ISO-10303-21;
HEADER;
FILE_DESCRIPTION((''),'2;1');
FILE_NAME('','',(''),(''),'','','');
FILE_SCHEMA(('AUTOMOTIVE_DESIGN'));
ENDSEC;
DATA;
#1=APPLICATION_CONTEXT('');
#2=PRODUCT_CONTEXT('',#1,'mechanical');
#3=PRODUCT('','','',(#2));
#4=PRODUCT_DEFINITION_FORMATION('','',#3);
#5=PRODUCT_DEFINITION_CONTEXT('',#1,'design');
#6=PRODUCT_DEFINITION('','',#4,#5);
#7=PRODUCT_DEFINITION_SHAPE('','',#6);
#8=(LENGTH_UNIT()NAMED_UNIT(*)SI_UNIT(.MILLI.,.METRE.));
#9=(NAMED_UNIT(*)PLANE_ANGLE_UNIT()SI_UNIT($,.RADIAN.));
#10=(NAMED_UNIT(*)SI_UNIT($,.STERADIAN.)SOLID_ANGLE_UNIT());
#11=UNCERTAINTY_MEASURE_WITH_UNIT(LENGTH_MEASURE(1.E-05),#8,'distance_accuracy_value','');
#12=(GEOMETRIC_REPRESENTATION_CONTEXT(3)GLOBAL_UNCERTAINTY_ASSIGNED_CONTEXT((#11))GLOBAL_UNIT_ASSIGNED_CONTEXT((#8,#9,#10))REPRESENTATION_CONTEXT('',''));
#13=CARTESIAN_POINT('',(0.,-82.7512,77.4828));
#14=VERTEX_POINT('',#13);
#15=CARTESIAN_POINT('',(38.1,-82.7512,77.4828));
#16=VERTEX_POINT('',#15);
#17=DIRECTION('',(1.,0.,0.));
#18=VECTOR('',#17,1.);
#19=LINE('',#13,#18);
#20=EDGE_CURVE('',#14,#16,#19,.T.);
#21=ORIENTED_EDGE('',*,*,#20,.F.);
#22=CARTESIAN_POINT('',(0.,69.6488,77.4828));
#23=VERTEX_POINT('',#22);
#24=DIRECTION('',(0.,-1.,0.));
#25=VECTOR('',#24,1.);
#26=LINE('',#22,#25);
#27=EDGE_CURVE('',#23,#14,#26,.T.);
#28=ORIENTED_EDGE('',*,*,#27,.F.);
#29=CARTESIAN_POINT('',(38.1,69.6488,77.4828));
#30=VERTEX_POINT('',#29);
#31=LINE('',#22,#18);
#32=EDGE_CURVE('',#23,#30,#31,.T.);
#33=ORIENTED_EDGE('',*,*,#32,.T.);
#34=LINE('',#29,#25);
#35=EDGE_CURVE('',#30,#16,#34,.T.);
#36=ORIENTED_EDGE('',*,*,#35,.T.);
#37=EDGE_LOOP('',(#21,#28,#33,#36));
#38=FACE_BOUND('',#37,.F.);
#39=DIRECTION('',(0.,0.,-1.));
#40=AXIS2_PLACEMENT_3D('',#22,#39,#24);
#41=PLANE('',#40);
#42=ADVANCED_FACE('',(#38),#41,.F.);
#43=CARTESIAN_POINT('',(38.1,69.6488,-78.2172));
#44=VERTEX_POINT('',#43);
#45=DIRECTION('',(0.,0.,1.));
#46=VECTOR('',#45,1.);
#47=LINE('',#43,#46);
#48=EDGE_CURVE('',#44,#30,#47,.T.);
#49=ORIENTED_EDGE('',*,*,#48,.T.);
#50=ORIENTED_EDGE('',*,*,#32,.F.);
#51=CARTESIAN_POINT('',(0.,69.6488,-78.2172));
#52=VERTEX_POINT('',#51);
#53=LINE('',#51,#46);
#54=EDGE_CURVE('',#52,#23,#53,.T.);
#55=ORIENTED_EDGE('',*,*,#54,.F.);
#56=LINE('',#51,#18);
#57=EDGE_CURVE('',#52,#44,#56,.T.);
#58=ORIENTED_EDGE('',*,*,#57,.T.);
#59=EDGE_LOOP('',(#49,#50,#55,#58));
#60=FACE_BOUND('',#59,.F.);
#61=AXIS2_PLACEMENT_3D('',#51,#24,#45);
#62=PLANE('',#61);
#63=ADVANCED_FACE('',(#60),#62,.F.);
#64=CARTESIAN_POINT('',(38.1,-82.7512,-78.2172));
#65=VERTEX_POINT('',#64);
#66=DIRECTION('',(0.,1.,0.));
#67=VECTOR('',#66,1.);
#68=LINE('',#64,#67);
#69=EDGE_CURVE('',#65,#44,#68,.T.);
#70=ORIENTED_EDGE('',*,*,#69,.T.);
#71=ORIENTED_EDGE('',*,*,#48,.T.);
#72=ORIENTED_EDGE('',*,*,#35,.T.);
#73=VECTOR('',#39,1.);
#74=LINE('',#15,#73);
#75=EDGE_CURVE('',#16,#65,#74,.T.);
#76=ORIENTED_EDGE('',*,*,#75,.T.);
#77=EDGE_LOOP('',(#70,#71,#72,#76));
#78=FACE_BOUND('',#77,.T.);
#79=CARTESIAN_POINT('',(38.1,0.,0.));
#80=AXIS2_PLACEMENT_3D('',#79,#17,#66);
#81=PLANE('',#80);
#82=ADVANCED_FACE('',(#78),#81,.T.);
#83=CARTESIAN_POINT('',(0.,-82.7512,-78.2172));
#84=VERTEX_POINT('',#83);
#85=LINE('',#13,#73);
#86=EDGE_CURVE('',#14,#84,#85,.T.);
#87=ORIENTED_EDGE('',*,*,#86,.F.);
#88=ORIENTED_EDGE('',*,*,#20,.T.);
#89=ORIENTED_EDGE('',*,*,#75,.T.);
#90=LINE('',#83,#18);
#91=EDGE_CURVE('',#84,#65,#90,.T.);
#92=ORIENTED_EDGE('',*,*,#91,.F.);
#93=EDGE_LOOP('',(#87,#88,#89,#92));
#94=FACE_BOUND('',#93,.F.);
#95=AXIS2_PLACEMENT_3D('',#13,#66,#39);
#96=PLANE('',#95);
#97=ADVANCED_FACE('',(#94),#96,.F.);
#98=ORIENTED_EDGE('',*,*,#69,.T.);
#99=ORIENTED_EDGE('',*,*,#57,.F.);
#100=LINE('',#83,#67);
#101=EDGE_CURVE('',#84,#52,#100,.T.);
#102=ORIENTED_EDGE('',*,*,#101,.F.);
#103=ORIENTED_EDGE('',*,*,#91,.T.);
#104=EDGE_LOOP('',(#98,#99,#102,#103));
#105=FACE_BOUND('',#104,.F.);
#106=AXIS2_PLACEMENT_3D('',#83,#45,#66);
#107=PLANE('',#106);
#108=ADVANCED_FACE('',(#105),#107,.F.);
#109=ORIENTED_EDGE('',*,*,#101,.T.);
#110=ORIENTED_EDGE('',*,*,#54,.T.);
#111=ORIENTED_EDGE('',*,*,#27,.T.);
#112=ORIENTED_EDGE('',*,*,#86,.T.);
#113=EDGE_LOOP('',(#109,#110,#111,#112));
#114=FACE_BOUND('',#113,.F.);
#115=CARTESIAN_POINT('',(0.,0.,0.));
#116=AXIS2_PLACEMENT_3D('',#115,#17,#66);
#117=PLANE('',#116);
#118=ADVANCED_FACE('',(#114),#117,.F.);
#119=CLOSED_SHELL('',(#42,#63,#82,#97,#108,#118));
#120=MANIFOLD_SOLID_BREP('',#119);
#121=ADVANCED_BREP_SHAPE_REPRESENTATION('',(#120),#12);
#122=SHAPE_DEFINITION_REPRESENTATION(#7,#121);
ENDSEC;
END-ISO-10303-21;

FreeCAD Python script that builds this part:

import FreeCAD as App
import Part
import Sketcher

V = App.Vector
Q = App.Units.Quantity

doc = App.newDocument("Part")
params = doc.addObject("Spreadsheet::Sheet", "Params")
for row, (alias, value) in enumerate([
    ("sketch1_width", "6 in"),
    ("pad1_length", "1.5 in"),
], start=1):
    params.set(f"A{row}", alias)
    params.set(f"B{row}", "=" + value)
    params.setAlias(f"B{row}", alias)

body = doc.addObject("PartDesign::Body", "Body")

# Sketch on YZ plane
sketch1 = body.newObject("Sketcher::SketchObject", "Sketch")
sketch1.AttachmentSupport = (doc.getObject("YZ_Plane"), [""])
sketch1.MapMode = "FlatFace"
sketch1.addGeometry([
    Part.LineSegment(V(70, -78, 0), V(70, 77, 0)),
    Part.LineSegment(V(70, 77, 0), V(-83, 77, 0)),
    Part.LineSegment(V(-83, 77, 0), V(-83, -78, 0)),
    Part.LineSegment(V(-83, -78, 0), V(70, -78, 0)),
], False)
sketch1.addConstraint([
    Sketcher.Constraint("Coincident", 0, 2, 1, 1),
    Sketcher.Constraint("Coincident", 1, 2, 2, 1),
    Sketcher.Constraint("Coincident", 2, 2, 3, 1),
    Sketcher.Constraint("Coincident", 3, 2, 0, 1),
    Sketcher.Constraint("Vertical", 0),
    Sketcher.Constraint("Horizontal", 1),
    Sketcher.Constraint("Vertical", 2),
    Sketcher.Constraint("Horizontal", 3),
    Sketcher.Constraint("DistanceX", 1, 2, 1, 1, Q("6 in")),
    Sketcher.Constraint("DistanceY", 0, 1, 0, 2, Q("155.7 mm")),
    Sketcher.Constraint("DistanceY", -1, 1, 0, 2, Q("3.0505 in")),
    Sketcher.Constraint("DistanceX", -1, 1, 0, 2, Q("69.6488 mm")),
])
sketch1.setExpression("Constraints[8]", "Params.sketch1_width")
pad1 = body.newObject("PartDesign::Pad", "Pad")
pad1.Profile = sketch1
pad1.setExpression("Length", "Params.pad1_length")

doc.recompute()
